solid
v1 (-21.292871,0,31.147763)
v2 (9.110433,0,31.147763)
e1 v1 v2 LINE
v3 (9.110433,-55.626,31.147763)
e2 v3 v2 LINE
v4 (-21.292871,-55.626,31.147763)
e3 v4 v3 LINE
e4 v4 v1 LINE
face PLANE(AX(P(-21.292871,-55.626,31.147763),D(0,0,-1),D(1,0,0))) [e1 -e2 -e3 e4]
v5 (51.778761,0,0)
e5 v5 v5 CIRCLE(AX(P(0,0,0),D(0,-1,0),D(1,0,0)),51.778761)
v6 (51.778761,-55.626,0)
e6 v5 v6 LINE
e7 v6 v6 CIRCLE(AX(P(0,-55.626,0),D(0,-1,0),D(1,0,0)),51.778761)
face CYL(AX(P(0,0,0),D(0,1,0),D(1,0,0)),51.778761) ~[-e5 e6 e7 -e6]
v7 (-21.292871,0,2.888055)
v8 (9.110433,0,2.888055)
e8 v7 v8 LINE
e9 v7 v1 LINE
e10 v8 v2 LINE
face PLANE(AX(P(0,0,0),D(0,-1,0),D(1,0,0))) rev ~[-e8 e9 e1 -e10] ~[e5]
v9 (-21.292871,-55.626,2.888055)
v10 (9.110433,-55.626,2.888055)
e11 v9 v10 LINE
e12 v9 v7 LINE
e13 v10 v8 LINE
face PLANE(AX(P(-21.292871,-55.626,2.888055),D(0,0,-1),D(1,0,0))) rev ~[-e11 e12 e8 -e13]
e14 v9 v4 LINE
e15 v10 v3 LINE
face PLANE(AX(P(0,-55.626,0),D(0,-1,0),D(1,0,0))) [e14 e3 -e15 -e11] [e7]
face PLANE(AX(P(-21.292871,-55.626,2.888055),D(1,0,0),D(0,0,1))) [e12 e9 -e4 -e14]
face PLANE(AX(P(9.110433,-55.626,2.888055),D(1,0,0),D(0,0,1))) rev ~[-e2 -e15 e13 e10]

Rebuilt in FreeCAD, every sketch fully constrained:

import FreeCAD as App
import Part
import Sketcher
from FreeCAD import Vector
Q = App.Units.Quantity

doc = App.newDocument("Part")
body = doc.addObject("PartDesign::Body", "Body")

# Sketch on XZ plane
sketch1 = doc.addObject("Sketcher::SketchObject", "Sketch")
body.addObject(sketch1)
sketch1.AttachmentSupport = (doc.XZ_Plane, [""])
sketch1.MapMode = "FlatFace"
sketch1.addGeometry(Part.Circle(Vector(0, 0, 0), Vector(0, 0, 1), 52), False)
sketch1.addConstraint([
    Sketcher.Constraint("Coincident", 0, 3, -1, 1),
    Sketcher.Constraint("Diameter", 0, 103.557522),
])
pad1 = doc.addObject("PartDesign::Pad", "Pad")
body.addObject(pad1)
pad1.Profile = sketch1
pad1.Length = Q("2.19 in")

# Sketch on XZ plane
sketch2 = doc.addObject("Sketcher::SketchObject", "Sketch001")
body.addObject(sketch2)
sketch2.AttachmentSupport = (doc.XZ_Plane, [""])
sketch2.MapMode = "FlatFace"
sketch2.AttachmentOffset = App.Placement(Vector(0, 0, 2.19 * 25.4), App.Rotation())
sketch2.addGeometry([
    Part.LineSegment(Vector(-21, 31, 0), Vector(-21, 3, 0)),
    Part.LineSegment(Vector(-21, 3, 0), Vector(9, 3, 0)),
    Part.LineSegment(Vector(9, 3, 0), Vector(9, 31, 0)),
    Part.LineSegment(Vector(9, 31, 0), Vector(-21, 31, 0)),
], False)
sketch2.addConstraint([
    Sketcher.Constraint("Coincident", 0, 2, 1, 1),
    Sketcher.Constraint("Coincident", 1, 2, 2, 1),
    Sketcher.Constraint("Coincident", 2, 2, 3, 1),
    Sketcher.Constraint("Coincident", 3, 2, 0, 1),
    Sketcher.Constraint("Vertical", 0),
    Sketcher.Constraint("Horizontal", 1),
    Sketcher.Constraint("Vertical", 2),
    Sketcher.Constraint("Horizontal", 3),
    Sketcher.Constraint("DistanceY", 0, 2, 0, 1, 28.259708),
    Sketcher.Constraint("DistanceX", 1, 1, 1, 2, 30.403304),
    Sketcher.Constraint("DistanceX", 0, 2, -1, 1, 21.292871),
    Sketcher.Constraint("DistanceY", -1, 1, 0, 2, 2.888055),
])
pocket1 = doc.addObject("PartDesign::Pocket", "Pocket")
body.addObject(pocket1)
pocket1.Profile = sketch2
pocket1.Length = Q("4.37 in")

doc.recompute()
